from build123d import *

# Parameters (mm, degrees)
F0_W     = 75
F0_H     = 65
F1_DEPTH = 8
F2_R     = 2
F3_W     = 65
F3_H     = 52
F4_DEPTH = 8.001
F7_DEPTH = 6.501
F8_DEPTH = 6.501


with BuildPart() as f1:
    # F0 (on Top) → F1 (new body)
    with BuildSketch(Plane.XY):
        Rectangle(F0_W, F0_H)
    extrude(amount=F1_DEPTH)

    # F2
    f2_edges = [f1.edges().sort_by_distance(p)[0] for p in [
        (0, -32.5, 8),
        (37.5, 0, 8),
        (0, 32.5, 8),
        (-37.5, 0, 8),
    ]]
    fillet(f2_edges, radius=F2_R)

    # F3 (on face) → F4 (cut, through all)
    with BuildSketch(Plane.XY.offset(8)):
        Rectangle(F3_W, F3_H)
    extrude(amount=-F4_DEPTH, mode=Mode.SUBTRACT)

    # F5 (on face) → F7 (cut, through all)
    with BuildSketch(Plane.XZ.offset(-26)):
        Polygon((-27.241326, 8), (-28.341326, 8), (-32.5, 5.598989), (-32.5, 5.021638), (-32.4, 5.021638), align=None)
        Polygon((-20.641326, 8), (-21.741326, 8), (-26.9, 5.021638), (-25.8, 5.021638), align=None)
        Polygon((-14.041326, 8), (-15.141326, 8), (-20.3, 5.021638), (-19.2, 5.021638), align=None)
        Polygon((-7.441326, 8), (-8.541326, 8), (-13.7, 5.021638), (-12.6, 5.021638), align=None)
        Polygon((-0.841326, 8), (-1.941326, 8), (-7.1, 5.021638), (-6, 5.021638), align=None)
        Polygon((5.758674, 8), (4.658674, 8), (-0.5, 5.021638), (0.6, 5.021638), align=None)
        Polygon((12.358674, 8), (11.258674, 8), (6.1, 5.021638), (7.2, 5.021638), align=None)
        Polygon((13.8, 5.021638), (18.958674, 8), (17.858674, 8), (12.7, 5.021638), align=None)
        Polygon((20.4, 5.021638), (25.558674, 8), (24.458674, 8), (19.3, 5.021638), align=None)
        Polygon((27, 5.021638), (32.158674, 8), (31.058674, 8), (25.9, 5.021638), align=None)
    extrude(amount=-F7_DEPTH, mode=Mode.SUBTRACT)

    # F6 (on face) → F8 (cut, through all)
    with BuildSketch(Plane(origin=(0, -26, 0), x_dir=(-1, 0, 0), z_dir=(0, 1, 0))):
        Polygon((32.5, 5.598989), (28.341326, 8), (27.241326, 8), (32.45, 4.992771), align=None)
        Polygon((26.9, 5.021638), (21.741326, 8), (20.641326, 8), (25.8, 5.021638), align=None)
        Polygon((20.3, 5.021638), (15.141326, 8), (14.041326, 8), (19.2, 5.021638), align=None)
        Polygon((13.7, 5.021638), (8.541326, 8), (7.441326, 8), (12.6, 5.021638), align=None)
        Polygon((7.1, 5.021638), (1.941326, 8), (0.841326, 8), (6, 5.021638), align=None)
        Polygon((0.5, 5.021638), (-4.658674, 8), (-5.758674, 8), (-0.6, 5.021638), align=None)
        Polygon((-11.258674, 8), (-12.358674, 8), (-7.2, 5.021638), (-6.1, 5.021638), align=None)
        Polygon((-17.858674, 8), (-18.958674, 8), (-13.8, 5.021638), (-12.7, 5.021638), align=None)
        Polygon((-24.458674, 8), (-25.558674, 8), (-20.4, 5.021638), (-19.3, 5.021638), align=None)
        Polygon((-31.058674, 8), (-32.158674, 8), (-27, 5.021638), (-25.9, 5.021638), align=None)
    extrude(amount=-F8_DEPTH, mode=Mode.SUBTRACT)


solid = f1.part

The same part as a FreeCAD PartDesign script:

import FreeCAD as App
import Part
import Sketcher

V = App.Vector
Q = App.Units.Quantity


def edges_at(feature, points):
    """Names of the edges that pass closest to the given points."""
    edges = feature.Shape.Edges
    near = lambda p: min(range(len(edges)), key=lambda i: edges[i].distToShape(Part.Vertex(*p))[0])
    return sorted({f"Edge{near(p) + 1}" for p in points})

doc = App.newDocument("Part")
params = doc.addObject("Spreadsheet::Sheet", "Params")
for row, (alias, value) in enumerate([
    ("sketch1_width", "75 mm"),
    ("sketch1_height", "65 mm"),
    ("pad1_length", "8 mm"),
    ("fillet_radius", "2 mm"),
    ("sketch2_width", "65 mm"),
    ("sketch2_height", "52 mm"),
    ("sketch3_width", "1.1 mm"),
    ("sketch3_width2", "0.1 mm"),
    ("sketch4_width", "1.1 mm"),
], start=1):
    params.set(f"A{row}", alias)
    params.set(f"B{row}", "=" + value)
    params.setAlias(f"B{row}", alias)

body = doc.addObject("PartDesign::Body", "Body")

sketch1 = body.newObject("Sketcher::SketchObject", "Sketch")
sketch1.AttachmentSupport = (doc.getObject("XY_Plane"), [""])
sketch1.MapMode = "FlatFace"
sketch1.addGeometry(Part.LineSegment(V(-38, 32, 0), V(-38, -32, 0)), False)
sketch1.addGeometry(Part.LineSegment(V(-38, -32, 0), V(38, -32, 0)), False)
sketch1.addGeometry(Part.LineSegment(V(38, -32, 0), V(38, 32, 0)), False)
sketch1.addGeometry(Part.LineSegment(V(38, 32, 0), V(-38, 32, 0)), False)
sketch1.addConstraint(Sketcher.Constraint("Coincident", 0, 2, 1, 1))
sketch1.addConstraint(Sketcher.Constraint("Coincident", 1, 2, 2, 1))
sketch1.addConstraint(Sketcher.Constraint("Coincident", 2, 2, 3, 1))
sketch1.addConstraint(Sketcher.Constraint("Coincident", 3, 2, 0, 1))
sketch1.addConstraint(Sketcher.Constraint("Vertical", 0))
sketch1.addConstraint(Sketcher.Constraint("Horizontal", 1))
sketch1.addConstraint(Sketcher.Constraint("Vertical", 2))
sketch1.addConstraint(Sketcher.Constraint("Horizontal", 3))
sketch1.addConstraint(Sketcher.Constraint("Symmetric", 0, 2, 2, 2, -1, 1))
sketch1.addConstraint(Sketcher.Constraint("DistanceX", 1, 1, 1, 2, 75.0))
sketch1.addConstraint(Sketcher.Constraint("DistanceY", 0, 2, 0, 1, 65.0))
sketch1.setExpression("Constraints[9]", "Params.sketch1_width")
sketch1.setExpression("Constraints[10]", "Params.sketch1_height")
pad1 = body.newObject("PartDesign::Pad", "Pad")
pad1.Profile = sketch1
pad1.setExpression("Length", "Params.pad1_length")
doc.recompute()

fillet = body.newObject("PartDesign::Fillet", "Fillet")
fillet.Base = (pad1, edges_at(pad1, [
    (0, -32.5, 8),
    (37.5, 0, 8),
    (0, 32.5, 8),
    (-37.5, 0, 8),
]))
fillet.setExpression("Radius", "Params.fillet_radius")

sketch2 = body.newObject("Sketcher::SketchObject", "Sketch001")
sketch2.AttachmentSupport = (doc.getObject("XY_Plane"), [""])
sketch2.MapMode = "FlatFace"
sketch2.AttachmentOffset = App.Placement(V(0, 0, 8), App.Rotation())
sketch2.addGeometry(Part.LineSegment(V(-32, 26, 0), V(-32, -26, 0)), False)
sketch2.addGeometry(Part.LineSegment(V(-32, -26, 0), V(32, -26, 0)), False)
sketch2.addGeometry(Part.LineSegment(V(32, -26, 0), V(32, 26, 0)), False)
sketch2.addGeometry(Part.LineSegment(V(32, 26, 0), V(-32, 26, 0)), False)
sketch2.addConstraint(Sketcher.Constraint("Coincident", 0, 2, 1, 1))
sketch2.addConstraint(Sketcher.Constraint("Coincident", 1, 2, 2, 1))
sketch2.addConstraint(Sketcher.Constraint("Coincident", 2, 2, 3, 1))
sketch2.addConstraint(Sketcher.Constraint("Coincident", 3, 2, 0, 1))
sketch2.addConstraint(Sketcher.Constraint("Vertical", 0))
sketch2.addConstraint(Sketcher.Constraint("Horizontal", 1))
sketch2.addConstraint(Sketcher.Constraint("Vertical", 2))
sketch2.addConstraint(Sketcher.Constraint("Horizontal", 3))
sketch2.addConstraint(Sketcher.Constraint("Symmetric", 0, 2, 2, 2, -1, 1))
sketch2.addConstraint(Sketcher.Constraint("DistanceX", 1, 1, 1, 2, 65.0))
sketch2.addConstraint(Sketcher.Constraint("DistanceY", 0, 2, 0, 1, 52.0))
sketch2.setExpression("Constraints[9]", "Params.sketch2_width")
sketch2.setExpression("Constraints[10]", "Params.sketch2_height")
pocket1 = body.newObject("PartDesign::Pocket", "Pocket")
pocket1.Profile = sketch2
pocket1.Type = "ThroughAll"

sketch3 = body.newObject("Sketcher::SketchObject", "Sketch002")
sketch3.AttachmentSupport = (doc.getObject("XZ_Plane"), [""])
sketch3.MapMode = "FlatFace"
sketch3.AttachmentOffset = App.Placement(V(0, 0, -26), App.Rotation())
sketch3.addGeometry(Part.LineSegment(V(-27.24, 8, 0), V(-28.34, 8, 0)), False)
sketch3.addGeometry(Part.LineSegment(V(-28.34, 8, 0), V(-32.5, 5.6, 0)), False)
sketch3.addGeometry(Part.LineSegment(V(-32.5, 5.6, 0), V(-32.5, 5.02, 0)), False)
sketch3.addGeometry(Part.LineSegment(V(-32.5, 5.02, 0), V(-32.4, 5.02, 0)), False)
sketch3.addGeometry(Part.LineSegment(V(-32.4, 5.02, 0), V(-27.24, 8, 0)), False)
sketch3.addGeometry(Part.LineSegment(V(-20.64, 8, 0), V(-21.74, 8, 0)), False)
sketch3.addGeometry(Part.LineSegment(V(-21.74, 8, 0), V(-26.9, 5.02, 0)), False)
sketch3.addGeometry(Part.LineSegment(V(-26.9, 5.02, 0), V(-25.8, 5.02, 0)), False)
sketch3.addGeometry(Part.LineSegment(V(-25.8, 5.02, 0), V(-20.64, 8, 0)), False)
sketch3.addGeometry(Part.LineSegment(V(-14.04, 8, 0), V(-15.14, 8, 0)), False)
sketch3.addGeometry(Part.LineSegment(V(-15.14, 8, 0), V(-20.3, 5.02, 0)), False)
sketch3.addGeometry(Part.LineSegment(V(-20.3, 5.02, 0), V(-19.2, 5.02, 0)), False)
sketch3.addGeometry(Part.LineSegment(V(-19.2, 5.02, 0), V(-14.04, 8, 0)), False)
sketch3.addGeometry(Part.LineSegment(V(-7.44, 8, 0), V(-8.54, 8, 0)), False)
sketch3.addGeometry(Part.LineSegment(V(-8.54, 8, 0), V(-13.7, 5.02, 0)), False)
sketch3.addGeometry(Part.LineSegment(V(-13.7, 5.02, 0), V(-12.6, 5.02, 0)), False)
sketch3.addGeometry(Part.LineSegment(V(-12.6, 5.02, 0), V(-7.44, 8, 0)), False)
sketch3.addGeometry(Part.LineSegment(V(-0.84, 8, 0), V(-1.94, 8, 0)), False)
sketch3.addGeometry(Part.LineSegment(V(-1.94, 8, 0), V(-7.1, 5.02, 0)), False)
sketch3.addGeometry(Part.LineSegment(V(-7.1, 5.02, 0), V(-6, 5.02, 0)), False)
sketch3.addGeometry(Part.LineSegment(V(-6, 5.02, 0), V(-0.84, 8, 0)), False)
sketch3.addGeometry(Part.LineSegment(V(5.76, 8, 0), V(4.66, 8, 0)), False)
sketch3.addGeometry(Part.LineSegment(V(4.66, 8, 0), V(-0.5, 5.02, 0)), False)
sketch3.addGeometry(Part.LineSegment(V(-0.5, 5.02, 0), V(0.6, 5.02, 0)), False)
sketch3.addGeometry(Part.LineSegment(V(0.6, 5.02, 0), V(5.76, 8, 0)), False)
sketch3.addGeometry(Part.LineSegment(V(12.36, 8, 0), V(11.26, 8, 0)), False)
sketch3.addGeometry(Part.LineSegment(V(11.26, 8, 0), V(6.1, 5.02, 0)), False)
sketch3.addGeometry(Part.LineSegment(V(6.1, 5.02, 0), V(7.2, 5.02, 0)), False)
sketch3.addGeometry(Part.LineSegment(V(7.2, 5.02, 0), V(12.36, 8, 0)), False)
sketch3.addGeometry(Part.LineSegment(V(13.8, 5.02, 0), V(18.96, 8, 0)), False)
sketch3.addGeometry(Part.LineSegment(V(18.96, 8, 0), V(17.86, 8, 0)), False)
sketch3.addGeometry(Part.LineSegment(V(17.86, 8, 0), V(12.7, 5.02, 0)), False)
sketch3.addGeometry(Part.LineSegment(V(12.7, 5.02, 0), V(13.8, 5.02, 0)), False)
sketch3.addGeometry(Part.LineSegment(V(20.4, 5.02, 0), V(25.56, 8, 0)), False)
sketch3.addGeometry(Part.LineSegment(V(25.56, 8, 0), V(24.46, 8, 0)), False)
sketch3.addGeometry(Part.LineSegment(V(24.46, 8, 0), V(19.3, 5.02, 0)), False)
sketch3.addGeometry(Part.LineSegment(V(19.3, 5.02, 0), V(20.4, 5.02, 0)), False)
sketch3.addGeometry(Part.LineSegment(V(27, 5.02, 0), V(32.16, 8, 0)), False)
sketch3.addGeometry(Part.LineSegment(V(32.16, 8, 0), V(31.06, 8, 0)), False)
sketch3.addGeometry(Part.LineSegment(V(31.06, 8, 0), V(25.9, 5.02, 0)), False)
sketch3.addGeometry(Part.LineSegment(V(25.9, 5.02, 0), V(27, 5.02, 0)), False)
sketch3.addConstraint(Sketcher.Constraint("Coincident", 0, 2, 1, 1))
sketch3.addConstraint(Sketcher.Constraint("Coincident", 1, 2, 2, 1))
sketch3.addConstraint(Sketcher.Constraint("Coincident", 2, 2, 3, 1))
sketch3.addConstraint(Sketcher.Constraint("Coincident", 3, 2, 4, 1))
sketch3.addConstraint(Sketcher.Constraint("Coincident", 4, 2, 0, 1))
sketch3.addConstraint(Sketcher.Constraint("Coincident", 5, 2, 6, 1))
sketch3.addConstraint(Sketcher.Constraint("Coincident", 6, 2, 7, 1))
sketch3.addConstraint(Sketcher.Constraint("Coincident", 7, 2, 8, 1))
sketch3.addConstraint(Sketcher.Constraint("Coincident", 8, 2, 5, 1))
sketch3.addConstraint(Sketcher.Constraint("Coincident", 9, 2, 10, 1))
sketch3.addConstraint(Sketcher.Constraint("Coincident", 10, 2, 11, 1))
sketch3.addConstraint(Sketcher.Constraint("Coincident", 11, 2, 12, 1))
sketch3.addConstraint(Sketcher.Constraint("Coincident", 12, 2, 9, 1))
sketch3.addConstraint(Sketcher.Constraint("Coincident", 13, 2, 14, 1))
sketch3.addConstraint(Sketcher.Constraint("Coincident", 14, 2, 15, 1))
sketch3.addConstraint(Sketcher.Constraint("Coincident", 15, 2, 16, 1))
sketch3.addConstraint(Sketcher.Constraint("Coincident", 16, 2, 13, 1))
sketch3.addConstraint(Sketcher.Constraint("Coincident", 17, 2, 18, 1))
sketch3.addConstraint(Sketcher.Constraint("Coincident", 18, 2, 19, 1))
sketch3.addConstraint(Sketcher.Constraint("Coincident", 19, 2, 20, 1))
sketch3.addConstraint(Sketcher.Constraint("Coincident", 20, 2, 17, 1))
sketch3.addConstraint(Sketcher.Constraint("Coincident", 21, 2, 22, 1))
sketch3.addConstraint(Sketcher.Constraint("Coincident", 22, 2, 23, 1))
sketch3.addConstraint(Sketcher.Constraint("Coincident", 23, 2, 24, 1))
sketch3.addConstraint(Sketcher.Constraint("Coincident", 24, 2, 21, 1))
sketch3.addConstraint(Sketcher.Constraint("Coincident", 25, 2, 26, 1))
sketch3.addConstraint(Sketcher.Constraint("Coincident", 26, 2, 27, 1))
sketch3.addConstraint(Sketcher.Constraint("Coincident", 27, 2, 28, 1))
sketch3.addConstraint(Sketcher.Constraint("Coincident", 28, 2, 25, 1))
sketch3.addConstraint(Sketcher.Constraint("Coincident", 29, 2, 30, 1))
sketch3.addConstraint(Sketcher.Constraint("Coincident", 30, 2, 31, 1))
sketch3.addConstraint(Sketcher.Constraint("Coincident", 31, 2, 32, 1))
sketch3.addConstraint(Sketcher.Constraint("Coincident", 32, 2, 29, 1))
sketch3.addConstraint(Sketcher.Constraint("Coincident", 33, 2, 34, 1))
sketch3.addConstraint(Sketcher.Constraint("Coincident", 34, 2, 35, 1))
sketch3.addConstraint(Sketcher.Constraint("Coincident", 35, 2, 36, 1))
sketch3.addConstraint(Sketcher.Constraint("Coincident", 36, 2, 33, 1))
sketch3.addConstraint(Sketcher.Constraint("Coincident", 37, 2, 38, 1))
sketch3.addConstraint(Sketcher.Constraint("Coincident", 38, 2, 39, 1))
sketch3.addConstraint(Sketcher.Constraint("Coincident", 39, 2, 40, 1))
sketch3.addConstraint(Sketcher.Constraint("Coincident", 40, 2, 37, 1))
sketch3.addConstraint(Sketcher.Constraint("Horizontal", 0))
sketch3.addConstraint(Sketcher.Constraint("Vertical", 2))
sketch3.addConstraint(Sketcher.Constraint("Horizontal", 3))
sketch3.addConstraint(Sketcher.Constraint("Horizontal", 5))
sketch3.addConstraint(Sketcher.Constraint("Horizontal", 7))
sketch3.addConstraint(Sketcher.Constraint("Horizontal", 9))
sketch3.addConstraint(Sketcher.Constraint("Horizontal", 11))
sketch3.addConstraint(Sketcher.Constraint("Horizontal", 13))
sketch3.addConstraint(Sketcher.Constraint("Horizontal", 15))
sketch3.addConstraint(Sketcher.Constraint("Horizontal", 17))
sketch3.addConstraint(Sketcher.Constraint("Horizontal", 19))
sketch3.addConstraint(Sketcher.Constraint("Horizontal", 21))
sketch3.addConstraint(Sketcher.Constraint("Horizontal", 23))
sketch3.addConstraint(Sketcher.Constraint("Horizontal", 25))
sketch3.addConstraint(Sketcher.Constraint("Horizontal", 27))
sketch3.addConstraint(Sketcher.Constraint("Horizontal", 30))
sketch3.addConstraint(Sketcher.Constraint("Horizontal", 32))
sketch3.addConstraint(Sketcher.Constraint("Horizontal", 34))
sketch3.addConstraint(Sketcher.Constraint("Horizontal", 36))
sketch3.addConstraint(Sketcher.Constraint("Horizontal", 38))
sketch3.addConstraint(Sketcher.Constraint("Horizontal", 40))
sketch3.addConstraint(Sketcher.Constraint("Parallel", 1, 4))
sketch3.addConstraint(Sketcher.Constraint("Parallel", 4, 6))
sketch3.addConstraint(Sketcher.Constraint("Parallel", 6, 8))
sketch3.addConstraint(Sketcher.Constraint("Parallel", 8, 10))
sketch3.addConstraint(Sketcher.Constraint("Parallel", 10, 12))
sketch3.addConstraint(Sketcher.Constraint("Parallel", 12, 14))
sketch3.addConstraint(Sketcher.Constraint("Parallel", 14, 16))
sketch3.addConstraint(Sketcher.Constraint("Parallel", 16, 18))
sketch3.addConstraint(Sketcher.Constraint("Parallel", 18, 20))
sketch3.addConstraint(Sketcher.Constraint("Parallel", 20, 22))
sketch3.addConstraint(Sketcher.Constraint("Parallel", 22, 24))
sketch3.addConstraint(Sketcher.Constraint("Parallel", 24, 26))
sketch3.addConstraint(Sketcher.Constraint("Parallel", 26, 28))
sketch3.addConstraint(Sketcher.Constraint("Parallel", 28, 29))
sketch3.addConstraint(Sketcher.Constraint("Parallel", 29, 31))
sketch3.addConstraint(Sketcher.Constraint("Parallel", 31, 33))
sketch3.addConstraint(Sketcher.Constraint("Parallel", 33, 35))
sketch3.addConstraint(Sketcher.Constraint("Parallel", 35, 37))
sketch3.addConstraint(Sketcher.Constraint("Parallel", 37, 39))
sketch3.addConstraint(Sketcher.Constraint("Horizontal", 4, 2, 5, 2))
sketch3.addConstraint(Sketcher.Constraint("Horizontal", 3, 2, 6, 2))
sketch3.addConstraint(Sketcher.Constraint("Horizontal", 8, 2, 9, 2))
sketch3.addConstraint(Sketcher.Constraint("Horizontal", 7, 2, 10, 2))
sketch3.addConstraint(Sketcher.Constraint("Horizontal", 12, 2, 13, 2))
sketch3.addConstraint(Sketcher.Constraint("Horizontal", 11, 2, 14, 2))
sketch3.addConstraint(Sketcher.Constraint("Horizontal", 16, 2, 17, 2))
sketch3.addConstraint(Sketcher.Constraint("Horizontal", 15, 2, 18, 2))
sketch3.addConstraint(Sketcher.Constraint("Horizontal", 20, 2, 21, 2))
sketch3.addConstraint(Sketcher.Constraint("Horizontal", 19, 2, 22, 2))
sketch3.addConstraint(Sketcher.Constraint("Horizontal", 24, 2, 25, 2))
sketch3.addConstraint(Sketcher.Constraint("Horizontal", 23, 2, 26, 2))
sketch3.addConstraint(Sketcher.Constraint("Horizontal", 28, 2, 29, 2))
sketch3.addConstraint(Sketcher.Constraint("Horizontal", 27, 2, 31, 2))
sketch3.addConstraint(Sketcher.Constraint("Horizontal", 30, 2, 33, 2))
sketch3.addConstraint(Sketcher.Constraint("Horizontal", 32, 2, 35, 2))
sketch3.addConstraint(Sketcher.Constraint("Horizontal", 34, 2, 37, 2))
sketch3.addConstraint(Sketcher.Constraint("Horizontal", 36, 2, 39, 2))
sketch3.addConstraint(Sketcher.Constraint("Equal", 0, 5))
sketch3.addConstraint(Sketcher.Constraint("Equal", 7, 9))
sketch3.addConstraint(Sketcher.Constraint("Equal", 11, 13))
sketch3.addConstraint(Sketcher.Constraint("Equal", 15, 17))
sketch3.addConstraint(Sketcher.Constraint("Equal", 19, 21))
sketch3.addConstraint(Sketcher.Constraint("Equal", 23, 25))
sketch3.addConstraint(Sketcher.Constraint("Equal", 27, 30))
sketch3.addConstraint(Sketcher.Constraint("Equal", 32, 34))
sketch3.addConstraint(Sketcher.Constraint("Equal", 36, 38))
sketch3.addConstraint(Sketcher.Constraint("Angle", 1, Q("-150.000006 deg")))
sketch3.addConstraint(Sketcher.Constraint("DistanceX", 0, 2, 0, 1, 1.1))
sketch3.addConstraint(Sketcher.Constraint("DistanceX", 3, 1, 3, 2, 0.1))
sketch3.addConstraint(Sketcher.Constraint("DistanceY", -1, 1, 0, 2, 8.0))
sketch3.addConstraint(Sketcher.Constraint("DistanceX", 19, 2, -1, 1, 6.0))
sketch3.addConstraint(Sketcher.Constraint("DistanceX", -1, 1, 40, 2, 27.0))
sketch3.addConstraint(Sketcher.Constraint("DistanceX", 1, 2, -1, 1, 32.5))
sketch3.addConstraint(Sketcher.Constraint("DistanceX", 6, 2, -1, 1, 26.9))
sketch3.addConstraint(Sketcher.Constraint("DistanceX", 10, 2, -1, 1, 20.3))
sketch3.addConstraint(Sketcher.Constraint("DistanceX", 14, 2, -1, 1, 13.7))
sketch3.addConstraint(Sketcher.Constraint("DistanceX", 22, 2, -1, 1, 0.5))
sketch3.addConstraint(Sketcher.Constraint("DistanceX", -1, 1, 26, 2, 6.1))
sketch3.addConstraint(Sketcher.Constraint("DistanceX", -1, 1, 31, 2, 12.7))
sketch3.addConstraint(Sketcher.Constraint("DistanceX", -1, 1, 35, 2, 19.3))
sketch3.addConstraint(Sketcher.Constraint("DistanceY", -1, 1, 1, 2, 5.598989))
sketch3.setExpression("Constraints[109]", "Params.sketch3_width")
sketch3.setExpression("Constraints[110]", "Params.sketch3_width2")
pocket2 = body.newObject("PartDesign::Pocket", "Pocket001")
pocket2.Profile = sketch3
pocket2.Type = "ThroughAll"

sketch4 = body.newObject("Sketcher::SketchObject", "Sketch003")
sketch4.AttachmentSupport = (doc.getObject("XZ_Plane"), [""])
sketch4.MapMode = "FlatFace"
sketch4.AttachmentOffset = App.Placement(V(0, 0, 26), App.Rotation())
sketch4.addGeometry(Part.LineSegment(V(-32.5, 5.6, 0), V(-28.3, 8, 0)), False)
sketch4.addGeometry(Part.LineSegment(V(-28.3, 8, 0), V(-27.2, 8, 0)), False)
sketch4.addGeometry(Part.LineSegment(V(-27.2, 8, 0), V(-32.5, 5, 0)), False)
sketch4.addGeometry(Part.LineSegment(V(-32.5, 5, 0), V(-32.5, 5.6, 0)), False)
sketch4.addGeometry(Part.LineSegment(V(-26.9, 5, 0), V(-21.7, 8, 0)), False)
sketch4.addGeometry(Part.LineSegment(V(-21.7, 8, 0), V(-20.6, 8, 0)), False)
sketch4.addGeometry(Part.LineSegment(V(-20.6, 8, 0), V(-25.8, 5, 0)), False)
sketch4.addGeometry(Part.LineSegment(V(-25.8, 5, 0), V(-26.9, 5, 0)), False)
sketch4.addGeometry(Part.LineSegment(V(-20.3, 5, 0), V(-15.1, 8, 0)), False)
sketch4.addGeometry(Part.LineSegment(V(-15.1, 8, 0), V(-14, 8, 0)), False)
sketch4.addGeometry(Part.LineSegment(V(-14, 8, 0), V(-19.2, 5, 0)), False)
sketch4.addGeometry(Part.LineSegment(V(-19.2, 5, 0), V(-20.3, 5, 0)), False)
sketch4.addGeometry(Part.LineSegment(V(-13.7, 5, 0), V(-8.5, 8, 0)), False)
sketch4.addGeometry(Part.LineSegment(V(-8.5, 8, 0), V(-7.4, 8, 0)), False)
sketch4.addGeometry(Part.LineSegment(V(-7.4, 8, 0), V(-12.6, 5, 0)), False)
sketch4.addGeometry(Part.LineSegment(V(-12.6, 5, 0), V(-13.7, 5, 0)), False)
sketch4.addGeometry(Part.LineSegment(V(-7.1, 5, 0), V(-1.9, 8, 0)), False)
sketch4.addGeometry(Part.LineSegment(V(-1.9, 8, 0), V(-0.8, 8, 0)), False)
sketch4.addGeometry(Part.LineSegment(V(-0.8, 8, 0), V(-6, 5, 0)), False)
sketch4.addGeometry(Part.LineSegment(V(-6, 5, 0), V(-7.1, 5, 0)), False)
sketch4.addGeometry(Part.LineSegment(V(-0.5, 5, 0), V(4.7, 8, 0)), False)
sketch4.addGeometry(Part.LineSegment(V(4.7, 8, 0), V(5.8, 8, 0)), False)
sketch4.addGeometry(Part.LineSegment(V(5.8, 8, 0), V(0.6, 5, 0)), False)
sketch4.addGeometry(Part.LineSegment(V(0.6, 5, 0), V(-0.5, 5, 0)), False)
sketch4.addGeometry(Part.LineSegment(V(11.3, 8, 0), V(12.4, 8, 0)), False)
sketch4.addGeometry(Part.LineSegment(V(12.4, 8, 0), V(7.2, 5, 0)), False)
sketch4.addGeometry(Part.LineSegment(V(7.2, 5, 0), V(6.1, 5, 0)), False)
sketch4.addGeometry(Part.LineSegment(V(6.1, 5, 0), V(11.3, 8, 0)), False)
sketch4.addGeometry(Part.LineSegment(V(17.9, 8, 0), V(19, 8, 0)), False)
sketch4.addGeometry(Part.LineSegment(V(19, 8, 0), V(13.8, 5, 0)), False)
sketch4.addGeometry(Part.LineSegment(V(13.8, 5, 0), V(12.7, 5, 0)), False)
sketch4.addGeometry(Part.LineSegment(V(12.7, 5, 0), V(17.9, 8, 0)), False)
sketch4.addGeometry(Part.LineSegment(V(24.5, 8, 0), V(25.6, 8, 0)), False)
sketch4.addGeometry(Part.LineSegment(V(25.6, 8, 0), V(20.4, 5, 0)), False)
sketch4.addGeometry(Part.LineSegment(V(20.4, 5, 0), V(19.3, 5, 0)), False)
sketch4.addGeometry(Part.LineSegment(V(19.3, 5, 0), V(24.5, 8, 0)), False)
sketch4.addGeometry(Part.LineSegment(V(31.1, 8, 0), V(32.2, 8, 0)), False)
sketch4.addGeometry(Part.LineSegment(V(32.2, 8, 0), V(27, 5, 0)), False)
sketch4.addGeometry(Part.LineSegment(V(27, 5, 0), V(25.9, 5, 0)), False)
sketch4.addGeometry(Part.LineSegment(V(25.9, 5, 0), V(31.1, 8, 0)), False)
sketch4.addConstraint(Sketcher.Constraint("Coincident", 0, 2, 1, 1))
sketch4.addConstraint(Sketcher.Constraint("Coincident", 1, 2, 2, 1))
sketch4.addConstraint(Sketcher.Constraint("Coincident", 2, 2, 3, 1))
sketch4.addConstraint(Sketcher.Constraint("Coincident", 3, 2, 0, 1))
sketch4.addConstraint(Sketcher.Constraint("Coincident", 4, 2, 5, 1))
sketch4.addConstraint(Sketcher.Constraint("Coincident", 5, 2, 6, 1))
sketch4.addConstraint(Sketcher.Constraint("Coincident", 6, 2, 7, 1))
sketch4.addConstraint(Sketcher.Constraint("Coincident", 7, 2, 4, 1))
sketch4.addConstraint(Sketcher.Constraint("Coincident", 8, 2, 9, 1))
sketch4.addConstraint(Sketcher.Constraint("Coincident", 9, 2, 10, 1))
sketch4.addConstraint(Sketcher.Constraint("Coincident", 10, 2, 11, 1))
sketch4.addConstraint(Sketcher.Constraint("Coincident", 11, 2, 8, 1))
sketch4.addConstraint(Sketcher.Constraint("Coincident", 12, 2, 13, 1))
sketch4.addConstraint(Sketcher.Constraint("Coincident", 13, 2, 14, 1))
sketch4.addConstraint(Sketcher.Constraint("Coincident", 14, 2, 15, 1))
sketch4.addConstraint(Sketcher.Constraint("Coincident", 15, 2, 12, 1))
sketch4.addConstraint(Sketcher.Constraint("Coincident", 16, 2, 17, 1))
sketch4.addConstraint(Sketcher.Constraint("Coincident", 17, 2, 18, 1))
sketch4.addConstraint(Sketcher.Constraint("Coincident", 18, 2, 19, 1))
sketch4.addConstraint(Sketcher.Constraint("Coincident", 19, 2, 16, 1))
sketch4.addConstraint(Sketcher.Constraint("Coincident", 20, 2, 21, 1))
sketch4.addConstraint(Sketcher.Constraint("Coincident", 21, 2, 22, 1))
sketch4.addConstraint(Sketcher.Constraint("Coincident", 22, 2, 23, 1))
sketch4.addConstraint(Sketcher.Constraint("Coincident", 23, 2, 20, 1))
sketch4.addConstraint(Sketcher.Constraint("Coincident", 24, 2, 25, 1))
sketch4.addConstraint(Sketcher.Constraint("Coincident", 25, 2, 26, 1))
sketch4.addConstraint(Sketcher.Constraint("Coincident", 26, 2, 27, 1))
sketch4.addConstraint(Sketcher.Constraint("Coincident", 27, 2, 24, 1))
sketch4.addConstraint(Sketcher.Constraint("Coincident", 28, 2, 29, 1))
sketch4.addConstraint(Sketcher.Constraint("Coincident", 29, 2, 30, 1))
sketch4.addConstraint(Sketcher.Constraint("Coincident", 30, 2, 31, 1))
sketch4.addConstraint(Sketcher.Constraint("Coincident", 31, 2, 28, 1))
sketch4.addConstraint(Sketcher.Constraint("Coincident", 32, 2, 33, 1))
sketch4.addConstraint(Sketcher.Constraint("Coincident", 33, 2, 34, 1))
sketch4.addConstraint(Sketcher.Constraint("Coincident", 34, 2, 35, 1))
sketch4.addConstraint(Sketcher.Constraint("Coincident", 35, 2, 32, 1))
sketch4.addConstraint(Sketcher.Constraint("Coincident", 36, 2, 37, 1))
sketch4.addConstraint(Sketcher.Constraint("Coincident", 37, 2, 38, 1))
sketch4.addConstraint(Sketcher.Constraint("Coincident", 38, 2, 39, 1))
sketch4.addConstraint(Sketcher.Constraint("Coincident", 39, 2, 36, 1))
sketch4.addConstraint(Sketcher.Constraint("Horizontal", 1))
sketch4.addConstraint(Sketcher.Constraint("Horizontal", 5))
sketch4.addConstraint(Sketcher.Constraint("Horizontal", 7))
sketch4.addConstraint(Sketcher.Constraint("Horizontal", 9))
sketch4.addConstraint(Sketcher.Constraint("Horizontal", 11))
sketch4.addConstraint(Sketcher.Constraint("Horizontal", 13))
sketch4.addConstraint(Sketcher.Constraint("Horizontal", 15))
sketch4.addConstraint(Sketcher.Constraint("Horizontal", 17))
sketch4.addConstraint(Sketcher.Constraint("Horizontal", 19))
sketch4.addConstraint(Sketcher.Constraint("Horizontal", 21))
sketch4.addConstraint(Sketcher.Constraint("Horizontal", 23))
sketch4.addConstraint(Sketcher.Constraint("Horizontal", 24))
sketch4.addConstraint(Sketcher.Constraint("Horizontal", 26))
sketch4.addConstraint(Sketcher.Constraint("Horizontal", 28))
sketch4.addConstraint(Sketcher.Constraint("Horizontal", 30))
sketch4.addConstraint(Sketcher.Constraint("Horizontal", 32))
sketch4.addConstraint(Sketcher.Constraint("Horizontal", 34))
sketch4.addConstraint(Sketcher.Constraint("Horizontal", 36))
sketch4.addConstraint(Sketcher.Constraint("Horizontal", 38))
sketch4.addConstraint(Sketcher.Constraint("Parallel", 0, 2))
sketch4.addConstraint(Sketcher.Constraint("Parallel", 2, 4))
sketch4.addConstraint(Sketcher.Constraint("Parallel", 4, 6))
sketch4.addConstraint(Sketcher.Constraint("Parallel", 6, 8))
sketch4.addConstraint(Sketcher.Constraint("Parallel", 8, 10))
sketch4.addConstraint(Sketcher.Constraint("Parallel", 10, 12))
sketch4.addConstraint(Sketcher.Constraint("Parallel", 12, 14))
sketch4.addConstraint(Sketcher.Constraint("Parallel", 14, 16))
sketch4.addConstraint(Sketcher.Constraint("Parallel", 16, 18))
sketch4.addConstraint(Sketcher.Constraint("Parallel", 18, 20))
sketch4.addConstraint(Sketcher.Constraint("Parallel", 20, 22))
sketch4.addConstraint(Sketcher.Constraint("Parallel", 22, 25))
sketch4.addConstraint(Sketcher.Constraint("Parallel", 25, 27))
sketch4.addConstraint(Sketcher.Constraint("Parallel", 27, 29))
sketch4.addConstraint(Sketcher.Constraint("Parallel", 29, 31))
sketch4.addConstraint(Sketcher.Constraint("Parallel", 31, 33))
sketch4.addConstraint(Sketcher.Constraint("Parallel", 33, 35))
sketch4.addConstraint(Sketcher.Constraint("Parallel", 35, 37))
sketch4.addConstraint(Sketcher.Constraint("Parallel", 37, 39))
sketch4.addConstraint(Sketcher.Constraint("Horizontal", 1, 2, 4, 2))
sketch4.addConstraint(Sketcher.Constraint("Horizontal", 5, 2, 8, 2))
sketch4.addConstraint(Sketcher.Constraint("Horizontal", 7, 2, 10, 2))
sketch4.addConstraint(Sketcher.Constraint("Horizontal", 9, 2, 12, 2))
sketch4.addConstraint(Sketcher.Constraint("Horizontal", 11, 2, 14, 2))
sketch4.addConstraint(Sketcher.Constraint("Horizontal", 13, 2, 16, 2))
sketch4.addConstraint(Sketcher.Constraint("Horizontal", 15, 2, 18, 2))
sketch4.addConstraint(Sketcher.Constraint("Horizontal", 17, 2, 20, 2))
sketch4.addConstraint(Sketcher.Constraint("Horizontal", 19, 2, 22, 2))
sketch4.addConstraint(Sketcher.Constraint("Horizontal", 21, 2, 24, 2))
sketch4.addConstraint(Sketcher.Constraint("Horizontal", 23, 2, 25, 2))
sketch4.addConstraint(Sketcher.Constraint("Horizontal", 27, 2, 28, 2))
sketch4.addConstraint(Sketcher.Constraint("Horizontal", 26, 2, 29, 2))
sketch4.addConstraint(Sketcher.Constraint("Horizontal", 31, 2, 32, 2))
sketch4.addConstraint(Sketcher.Constraint("Horizontal", 30, 2, 33, 2))
sketch4.addConstraint(Sketcher.Constraint("Horizontal", 35, 2, 36, 2))
sketch4.addConstraint(Sketcher.Constraint("Horizontal", 34, 2, 37, 2))
sketch4.addConstraint(Sketcher.Constraint("Equal", 1, 5))
sketch4.addConstraint(Sketcher.Constraint("Equal", 7, 9))
sketch4.addConstraint(Sketcher.Constraint("Equal", 11, 13))
sketch4.addConstraint(Sketcher.Constraint("Equal", 15, 17))
sketch4.addConstraint(Sketcher.Constraint("Equal", 19, 21))
sketch4.addConstraint(Sketcher.Constraint("Equal", 23, 24))
sketch4.addConstraint(Sketcher.Constraint("Equal", 26, 28))
sketch4.addConstraint(Sketcher.Constraint("Equal", 30, 32))
sketch4.addConstraint(Sketcher.Constraint("Equal", 34, 36))
sketch4.addConstraint(Sketcher.Constraint("Angle", 0, Q("29.999994 deg")))
sketch4.addConstraint(Sketcher.Constraint("DistanceX", 1, 1, 1, 2, 1.1))
sketch4.addConstraint(Sketcher.Constraint("DistanceY", -1, 1, 0, 2, 8.0))
sketch4.addConstraint(Sketcher.Constraint("DistanceX", 18, 2, -1, 1, 6.0))
sketch4.addConstraint(Sketcher.Constraint("DistanceX", -1, 1, 37, 2, 27.0))
sketch4.addConstraint(Sketcher.Constraint("DistanceX", 3, 2, -1, 1, 32.5))
sketch4.addConstraint(Sketcher.Constraint("DistanceX", 6, 2, -1, 1, 25.8))
sketch4.addConstraint(Sketcher.Constraint("DistanceX", 10, 2, -1, 1, 19.2))
sketch4.addConstraint(Sketcher.Constraint("DistanceX", 14, 2, -1, 1, 12.6))
sketch4.addConstraint(Sketcher.Constraint("DistanceX", -1, 1, 22, 2, 0.6))
sketch4.addConstraint(Sketcher.Constraint("DistanceX", -1, 1, 25, 2, 7.2))
sketch4.addConstraint(Sketcher.Constraint("DistanceX", -1, 1, 29, 2, 13.8))
sketch4.addConstraint(Sketcher.Constraint("DistanceX", -1, 1, 33, 2, 20.4))
sketch4.addConstraint(Sketcher.Constraint("DistanceX", 1, 2, 4, 2, 5.5))
sketch4.addConstraint(Sketcher.Constraint("DistanceX", 2, 2, -1, 1, 32.45))
sketch4.addConstraint(Sketcher.Constraint("Distance", 2, 6.014459))
sketch4.setExpression("Constraints[105]", "Params.sketch4_width")
pocket3 = body.newObject("PartDesign::Pocket", "Pocket002")
pocket3.Profile = sketch4
pocket3.Type = "ThroughAll"
pocket3.Reversed = True

doc.recompute()
